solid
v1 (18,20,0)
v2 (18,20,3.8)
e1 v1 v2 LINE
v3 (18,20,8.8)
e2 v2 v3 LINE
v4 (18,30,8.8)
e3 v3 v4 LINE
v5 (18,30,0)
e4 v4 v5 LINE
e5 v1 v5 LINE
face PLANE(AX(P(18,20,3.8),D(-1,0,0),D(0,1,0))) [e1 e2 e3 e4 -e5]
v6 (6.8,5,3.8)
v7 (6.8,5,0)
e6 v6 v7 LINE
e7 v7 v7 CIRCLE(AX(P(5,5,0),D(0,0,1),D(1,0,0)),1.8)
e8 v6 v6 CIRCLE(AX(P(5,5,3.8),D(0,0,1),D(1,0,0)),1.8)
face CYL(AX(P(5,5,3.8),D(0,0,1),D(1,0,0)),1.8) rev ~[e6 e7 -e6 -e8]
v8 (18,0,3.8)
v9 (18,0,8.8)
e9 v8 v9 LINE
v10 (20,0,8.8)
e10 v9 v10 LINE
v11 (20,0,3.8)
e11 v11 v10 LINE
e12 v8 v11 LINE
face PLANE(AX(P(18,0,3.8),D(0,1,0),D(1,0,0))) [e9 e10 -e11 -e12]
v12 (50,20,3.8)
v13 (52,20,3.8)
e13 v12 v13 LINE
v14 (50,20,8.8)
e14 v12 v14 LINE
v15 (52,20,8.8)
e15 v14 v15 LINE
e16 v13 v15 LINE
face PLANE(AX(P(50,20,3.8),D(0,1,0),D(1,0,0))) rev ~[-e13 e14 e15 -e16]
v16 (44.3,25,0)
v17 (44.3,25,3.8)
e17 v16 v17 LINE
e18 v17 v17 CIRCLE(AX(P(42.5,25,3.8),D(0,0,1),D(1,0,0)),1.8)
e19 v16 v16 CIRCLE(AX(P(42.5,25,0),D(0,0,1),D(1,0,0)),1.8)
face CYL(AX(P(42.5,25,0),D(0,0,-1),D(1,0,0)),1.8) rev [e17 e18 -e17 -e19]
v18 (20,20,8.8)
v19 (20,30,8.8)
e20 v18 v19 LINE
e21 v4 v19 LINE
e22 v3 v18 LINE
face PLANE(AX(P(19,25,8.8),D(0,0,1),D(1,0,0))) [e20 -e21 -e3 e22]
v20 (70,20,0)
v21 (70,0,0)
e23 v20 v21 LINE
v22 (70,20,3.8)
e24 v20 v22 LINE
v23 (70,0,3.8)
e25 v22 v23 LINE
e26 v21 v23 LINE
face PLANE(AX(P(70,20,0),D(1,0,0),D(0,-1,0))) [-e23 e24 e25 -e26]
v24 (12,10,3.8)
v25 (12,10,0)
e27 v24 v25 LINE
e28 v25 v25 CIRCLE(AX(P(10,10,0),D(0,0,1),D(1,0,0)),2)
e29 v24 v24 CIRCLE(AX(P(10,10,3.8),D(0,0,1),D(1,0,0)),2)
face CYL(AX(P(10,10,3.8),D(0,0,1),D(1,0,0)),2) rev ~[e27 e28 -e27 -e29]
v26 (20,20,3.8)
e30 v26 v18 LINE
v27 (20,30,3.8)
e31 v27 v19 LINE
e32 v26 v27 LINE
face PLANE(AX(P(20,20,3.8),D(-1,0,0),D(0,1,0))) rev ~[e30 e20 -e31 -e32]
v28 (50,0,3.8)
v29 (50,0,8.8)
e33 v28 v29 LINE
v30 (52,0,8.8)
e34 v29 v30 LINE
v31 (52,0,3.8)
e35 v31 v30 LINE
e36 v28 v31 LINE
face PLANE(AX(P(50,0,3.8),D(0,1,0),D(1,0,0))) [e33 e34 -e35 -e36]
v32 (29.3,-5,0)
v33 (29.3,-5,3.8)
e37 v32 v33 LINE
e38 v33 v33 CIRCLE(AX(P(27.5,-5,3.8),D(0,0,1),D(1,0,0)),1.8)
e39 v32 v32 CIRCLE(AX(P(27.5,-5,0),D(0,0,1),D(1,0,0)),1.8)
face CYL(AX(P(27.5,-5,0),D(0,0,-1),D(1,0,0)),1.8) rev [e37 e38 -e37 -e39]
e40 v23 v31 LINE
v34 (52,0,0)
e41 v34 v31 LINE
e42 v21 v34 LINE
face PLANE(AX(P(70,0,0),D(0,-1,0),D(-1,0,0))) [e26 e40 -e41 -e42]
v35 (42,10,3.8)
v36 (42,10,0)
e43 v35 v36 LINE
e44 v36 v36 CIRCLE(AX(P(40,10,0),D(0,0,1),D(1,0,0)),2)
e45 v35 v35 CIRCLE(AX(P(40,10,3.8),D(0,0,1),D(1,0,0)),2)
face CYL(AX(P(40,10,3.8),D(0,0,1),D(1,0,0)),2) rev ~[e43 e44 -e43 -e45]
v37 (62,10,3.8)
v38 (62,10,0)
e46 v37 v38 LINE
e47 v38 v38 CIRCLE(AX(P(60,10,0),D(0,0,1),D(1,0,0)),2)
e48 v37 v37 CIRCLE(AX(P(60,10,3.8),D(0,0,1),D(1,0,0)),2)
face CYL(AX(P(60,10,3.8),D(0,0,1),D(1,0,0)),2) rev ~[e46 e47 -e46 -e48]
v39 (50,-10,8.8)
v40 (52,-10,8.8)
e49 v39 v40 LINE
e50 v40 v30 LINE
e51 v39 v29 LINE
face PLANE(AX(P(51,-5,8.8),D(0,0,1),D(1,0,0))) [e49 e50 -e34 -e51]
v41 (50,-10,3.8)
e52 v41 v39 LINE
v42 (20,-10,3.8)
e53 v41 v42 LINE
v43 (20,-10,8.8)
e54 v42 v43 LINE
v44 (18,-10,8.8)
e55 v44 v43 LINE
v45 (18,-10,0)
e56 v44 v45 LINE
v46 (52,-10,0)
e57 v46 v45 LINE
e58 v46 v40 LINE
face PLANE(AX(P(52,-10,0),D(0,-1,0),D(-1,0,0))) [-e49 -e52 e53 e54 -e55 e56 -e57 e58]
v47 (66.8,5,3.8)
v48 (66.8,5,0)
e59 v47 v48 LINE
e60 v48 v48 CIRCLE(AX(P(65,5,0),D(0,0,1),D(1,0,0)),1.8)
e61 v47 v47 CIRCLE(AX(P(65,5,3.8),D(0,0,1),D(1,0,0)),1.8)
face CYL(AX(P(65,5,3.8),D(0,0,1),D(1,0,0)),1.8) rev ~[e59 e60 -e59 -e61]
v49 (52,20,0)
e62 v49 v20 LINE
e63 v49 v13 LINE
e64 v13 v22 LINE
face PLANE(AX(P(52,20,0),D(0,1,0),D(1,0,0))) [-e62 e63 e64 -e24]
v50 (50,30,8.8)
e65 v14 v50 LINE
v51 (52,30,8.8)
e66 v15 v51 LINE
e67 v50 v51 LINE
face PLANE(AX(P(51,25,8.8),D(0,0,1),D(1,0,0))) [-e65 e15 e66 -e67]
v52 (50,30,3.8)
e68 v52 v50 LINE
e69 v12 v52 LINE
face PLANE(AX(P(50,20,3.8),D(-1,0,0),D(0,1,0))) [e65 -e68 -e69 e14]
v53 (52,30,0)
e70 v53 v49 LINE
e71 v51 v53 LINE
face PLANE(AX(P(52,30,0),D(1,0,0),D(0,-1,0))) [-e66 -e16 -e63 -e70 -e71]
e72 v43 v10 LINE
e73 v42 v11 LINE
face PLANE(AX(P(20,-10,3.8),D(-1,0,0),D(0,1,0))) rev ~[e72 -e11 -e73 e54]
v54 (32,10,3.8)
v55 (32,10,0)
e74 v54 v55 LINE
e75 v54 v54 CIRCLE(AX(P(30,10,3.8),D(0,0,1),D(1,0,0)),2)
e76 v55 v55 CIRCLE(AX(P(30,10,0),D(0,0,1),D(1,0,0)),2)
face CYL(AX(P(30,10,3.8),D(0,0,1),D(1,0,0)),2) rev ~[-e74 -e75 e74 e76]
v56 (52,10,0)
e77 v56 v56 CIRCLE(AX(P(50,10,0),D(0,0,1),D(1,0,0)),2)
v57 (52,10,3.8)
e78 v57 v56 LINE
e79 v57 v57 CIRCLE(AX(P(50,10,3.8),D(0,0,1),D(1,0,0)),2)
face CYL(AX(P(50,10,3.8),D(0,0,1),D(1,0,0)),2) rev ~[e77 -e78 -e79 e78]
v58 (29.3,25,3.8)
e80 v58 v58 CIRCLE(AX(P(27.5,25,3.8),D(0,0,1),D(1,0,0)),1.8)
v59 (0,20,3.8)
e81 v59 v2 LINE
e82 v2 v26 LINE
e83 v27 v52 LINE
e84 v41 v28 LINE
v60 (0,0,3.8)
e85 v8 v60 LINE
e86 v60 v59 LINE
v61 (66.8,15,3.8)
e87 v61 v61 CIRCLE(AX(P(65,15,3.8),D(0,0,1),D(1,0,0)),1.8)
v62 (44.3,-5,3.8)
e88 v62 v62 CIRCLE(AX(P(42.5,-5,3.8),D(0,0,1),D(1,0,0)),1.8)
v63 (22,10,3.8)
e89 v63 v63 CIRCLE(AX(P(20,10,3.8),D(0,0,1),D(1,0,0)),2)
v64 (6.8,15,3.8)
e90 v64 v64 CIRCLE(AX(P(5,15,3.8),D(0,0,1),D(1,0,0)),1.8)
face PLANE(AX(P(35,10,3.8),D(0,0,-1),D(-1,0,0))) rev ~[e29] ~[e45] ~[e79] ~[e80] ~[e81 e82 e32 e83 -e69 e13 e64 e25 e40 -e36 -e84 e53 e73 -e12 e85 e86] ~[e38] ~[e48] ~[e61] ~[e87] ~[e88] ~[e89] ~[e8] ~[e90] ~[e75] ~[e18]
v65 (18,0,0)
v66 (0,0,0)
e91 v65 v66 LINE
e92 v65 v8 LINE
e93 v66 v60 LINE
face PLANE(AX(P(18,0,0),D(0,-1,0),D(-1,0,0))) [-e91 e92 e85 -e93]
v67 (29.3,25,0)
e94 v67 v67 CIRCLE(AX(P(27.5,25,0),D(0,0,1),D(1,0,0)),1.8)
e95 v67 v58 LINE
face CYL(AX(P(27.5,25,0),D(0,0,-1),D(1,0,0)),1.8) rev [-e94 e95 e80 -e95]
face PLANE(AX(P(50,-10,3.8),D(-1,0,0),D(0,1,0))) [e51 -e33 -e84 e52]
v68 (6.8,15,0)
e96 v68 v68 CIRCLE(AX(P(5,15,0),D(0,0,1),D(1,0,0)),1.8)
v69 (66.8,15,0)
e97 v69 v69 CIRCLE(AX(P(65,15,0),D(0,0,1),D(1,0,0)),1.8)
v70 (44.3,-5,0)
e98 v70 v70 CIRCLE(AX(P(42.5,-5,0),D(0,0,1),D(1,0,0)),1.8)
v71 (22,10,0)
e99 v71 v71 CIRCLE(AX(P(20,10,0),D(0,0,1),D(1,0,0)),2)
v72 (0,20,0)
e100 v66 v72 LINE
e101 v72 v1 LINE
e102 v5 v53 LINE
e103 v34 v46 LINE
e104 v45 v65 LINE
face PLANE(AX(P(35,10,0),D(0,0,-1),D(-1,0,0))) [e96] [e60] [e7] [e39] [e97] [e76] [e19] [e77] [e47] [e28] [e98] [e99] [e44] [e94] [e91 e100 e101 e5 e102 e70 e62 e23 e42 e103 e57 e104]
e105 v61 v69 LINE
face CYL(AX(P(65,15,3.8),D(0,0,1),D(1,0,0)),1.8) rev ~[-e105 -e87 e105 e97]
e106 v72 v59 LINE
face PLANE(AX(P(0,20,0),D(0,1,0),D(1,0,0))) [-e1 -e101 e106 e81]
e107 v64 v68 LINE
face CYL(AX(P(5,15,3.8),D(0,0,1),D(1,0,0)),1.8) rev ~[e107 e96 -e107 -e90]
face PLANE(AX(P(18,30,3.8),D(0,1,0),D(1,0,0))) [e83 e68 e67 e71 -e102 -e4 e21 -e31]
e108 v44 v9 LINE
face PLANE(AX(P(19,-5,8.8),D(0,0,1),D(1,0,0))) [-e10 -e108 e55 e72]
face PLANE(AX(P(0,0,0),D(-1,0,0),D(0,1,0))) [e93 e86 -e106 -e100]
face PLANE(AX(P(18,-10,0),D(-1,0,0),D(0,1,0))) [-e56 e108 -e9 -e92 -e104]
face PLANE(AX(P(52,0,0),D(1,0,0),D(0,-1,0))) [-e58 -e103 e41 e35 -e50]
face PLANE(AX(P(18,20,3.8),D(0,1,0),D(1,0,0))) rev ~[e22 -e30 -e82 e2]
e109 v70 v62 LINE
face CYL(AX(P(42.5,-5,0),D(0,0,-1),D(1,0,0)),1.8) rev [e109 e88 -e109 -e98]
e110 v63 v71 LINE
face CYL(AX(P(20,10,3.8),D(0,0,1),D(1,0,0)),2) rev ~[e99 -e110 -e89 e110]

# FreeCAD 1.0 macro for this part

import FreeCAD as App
import Part
import Sketcher

V = App.Vector
Q = App.Units.Quantity


def add_polygon(sketch, points):
    """Adds a closed chain of lines whose ends are joined by coincident constraints."""
    first, n = sketch.GeometryCount, len(points)
    for a, b in zip(points, points[1:] + points[:1]):
        sketch.addGeometry(Part.LineSegment(App.Vector(*a, 0), App.Vector(*b, 0)), False)
    for i in range(n):
        sketch.addConstraint(Sketcher.Constraint("Coincident", first + i, 2, first + (i + 1) % n, 1))

doc = App.newDocument("Part")
body = doc.addObject("PartDesign::Body", "Body")

# Sketch on XY plane
sketch1 = body.newObject("Sketcher::SketchObject", "Sketch")
sketch1.AttachmentSupport = (doc.getObject("XY_Plane"), [""])
sketch1.MapMode = "FlatFace"
add_polygon(sketch1, [(0, 20), (0, 0), (18, 0), (18, -10), (52, -10), (52, 0), (70, 0), (70, 20), (52, 20), (52, 30), (18, 30), (18, 20)])  # lines 0-11
sketch1.addGeometry(Part.Circle(V(42.5, -5, 0), V(0, 0, 1), 1.8), False)  # 12
sketch1.addGeometry(Part.Circle(V(27.5, -5, 0), V(0, 0, 1), 1.8), False)  # 13
sketch1.addGeometry(Part.Circle(V(42.5, 25, 0), V(0, 0, 1), 1.8), False)  # 14
sketch1.addGeometry(Part.Circle(V(27.5, 25, 0), V(0, 0, 1), 1.8), False)  # 15
sketch1.addConstraint([
    Sketcher.Constraint("Vertical", 0),
    Sketcher.Constraint("Horizontal", 1),
    Sketcher.Constraint("Vertical", 2),
    Sketcher.Constraint("Horizontal", 3),
    Sketcher.Constraint("Vertical", 4),
    Sketcher.Constraint("Horizontal", 5),
    Sketcher.Constraint("Vertical", 6),
    Sketcher.Constraint("Horizontal", 7),
    Sketcher.Constraint("Vertical", 8),
    Sketcher.Constraint("Horizontal", 9),
    Sketcher.Constraint("Vertical", 10),
    Sketcher.Constraint("Horizontal", 11),
    Sketcher.Constraint("Coincident", 0, 2, -1, 1),
    Sketcher.Constraint("Equal", 12, 13),
    Sketcher.Constraint("Equal", 13, 14),
    Sketcher.Constraint("Equal", 14, 15),
    Sketcher.Constraint("PointOnObject", 4, 2, -1),
    Sketcher.Constraint("Horizontal", 12, 3, 13, 3),
    Sketcher.Constraint("Horizontal", 14, 3, 15, 3),
    Sketcher.Constraint("Horizontal", 7, 2, 10, 2),
    Sketcher.Constraint("Vertical", 12, 3, 14, 3),
    Sketcher.Constraint("Vertical", 13, 3, 15, 3),
    Sketcher.Constraint("Vertical", 4, 2, 7, 2),
    Sketcher.Constraint("Vertical", 2, 2, 9, 2),
    Sketcher.Constraint("Equal", 1, 5),
    Sketcher.Constraint("Equal", 4, 8),
    Sketcher.Constraint("Diameter", 12, Q("3.6 mm")),
    Sketcher.Constraint("DistanceX", 1, 1, 1, 2, Q("18 mm")),
    Sketcher.Constraint("DistanceX", 3, 1, 3, 2, Q("34 mm")),
    Sketcher.Constraint("DistanceY", 0, 2, 0, 1, Q("20 mm")),
    Sketcher.Constraint("DistanceY", 2, 2, 2, 1, Q("10 mm")),
    Sketcher.Constraint("DistanceY", 12, 3, -1, 1, Q("5 mm")),
    Sketcher.Constraint("DistanceY", -1, 1, 14, 3, Q("25 mm")),
    Sketcher.Constraint("DistanceX", 13, 3, 12, 3, Q("15 mm")),
    Sketcher.Constraint("DistanceX", -1, 1, 12, 3, Q("42.5 mm")),
])
pad1 = body.newObject("PartDesign::Pad", "Pad")
pad1.Profile = sketch1
pad1.Length = 3.8

# Sketch on XY plane
sketch2 = body.newObject("Sketcher::SketchObject", "Sketch001")
sketch2.AttachmentSupport = (doc.getObject("XY_Plane"), [""])
sketch2.MapMode = "FlatFace"
sketch2.AttachmentOffset = App.Placement(V(0, 0, 3.8), App.Rotation())
sketch2.addGeometry([
    Part.Circle(V(5, 15, 0), V(0, 0, 1), 1.8),
    Part.Circle(V(65, 15, 0), V(0, 0, 1), 1.8),
    Part.Circle(V(65, 5, 0), V(0, 0, 1), 1.8),
    Part.Circle(V(5, 5, 0), V(0, 0, 1), 1.8),
], False)
sketch2.addConstraint([
    Sketcher.Constraint("Equal", 0, 1),
    Sketcher.Constraint("Equal", 1, 2),
    Sketcher.Constraint("Equal", 2, 3),
    Sketcher.Constraint("Horizontal", 0, 3, 1, 3),
    Sketcher.Constraint("Horizontal", 2, 3, 3, 3),
    Sketcher.Constraint("Vertical", 1, 3, 2, 3),
    Sketcher.Constraint("Vertical", 0, 3, 3, 3),
    Sketcher.Constraint("Diameter", 0, Q("3.6 mm")),
    Sketcher.Constraint("DistanceX", -1, 1, 0, 3, Q("5 mm")),
    Sketcher.Constraint("DistanceY", -1, 1, 0, 3, Q("15 mm")),
    Sketcher.Constraint("DistanceX", -1, 1, 1, 3, Q("65 mm")),
    Sketcher.Constraint("DistanceY", -1, 1, 2, 3, Q("5 mm")),
])
pocket1 = body.newObject("PartDesign::Pocket", "Pocket")
pocket1.Profile = sketch2
pocket1.Length = 5

# Sketch on XY plane
sketch3 = body.newObject("Sketcher::SketchObject", "Sketch002")
sketch3.AttachmentSupport = (doc.getObject("XY_Plane"), [""])
sketch3.MapMode = "FlatFace"
sketch3.AttachmentOffset = App.Placement(V(0, 0, 3.8), App.Rotation())
add_polygon(sketch3, [(18, 30), (18, 20), (20, 20), (20, 30)])  # lines 0-3
add_polygon(sketch3, [(50, 30), (50, 20), (52, 20), (52, 30)])  # lines 4-7
add_polygon(sketch3, [(50, 0), (50, -10), (52, -10), (52, 0)])  # lines 8-11
add_polygon(sketch3, [(18, 0), (18, -10), (20, -10), (20, 0)])  # lines 12-15
sketch3.addConstraint([
    Sketcher.Constraint("Vertical", 0),
    Sketcher.Constraint("Horizontal", 1),
    Sketcher.Constraint("Vertical", 2),
    Sketcher.Constraint("Horizontal", 3),
    Sketcher.Constraint("Vertical", 4),
    Sketcher.Constraint("Horizontal", 5),
    Sketcher.Constraint("Vertical", 6),
    Sketcher.Constraint("Horizontal", 7),
    Sketcher.Constraint("Vertical", 8),
    Sketcher.Constraint("Horizontal", 9),
    Sketcher.Constraint("Vertical", 10),
    Sketcher.Constraint("Horizontal", 11),
    Sketcher.Constraint("Vertical", 12),
    Sketcher.Constraint("Horizontal", 13),
    Sketcher.Constraint("Vertical", 14),
    Sketcher.Constraint("Horizontal", 15),
    Sketcher.Constraint("PointOnObject", 10, 2, -1),
    Sketcher.Constraint("PointOnObject", 14, 2, -1),
    Sketcher.Constraint("Horizontal", 1, 2, 4, 2),
    Sketcher.Constraint("Horizontal", 3, 2, 6, 2),
    Sketcher.Constraint("Horizontal", 9, 2, 12, 2),
    Sketcher.Constraint("Vertical", 7, 2, 8, 2),
    Sketcher.Constraint("Vertical", 6, 2, 9, 2),
    Sketcher.Constraint("Vertical", 3, 2, 12, 2),
    Sketcher.Constraint("Vertical", 2, 2, 13, 2),
    Sketcher.Constraint("Equal", 3, 5),
    Sketcher.Constraint("Equal", 6, 8),
    Sketcher.Constraint("DistanceX", 1, 1, 1, 2, Q("2 mm")),
    Sketcher.Constraint("DistanceY", 0, 2, 0, 1, Q("10 mm")),
    Sketcher.Constraint("DistanceX", -1, 1, 0, 2, Q("18 mm")),
    Sketcher.Constraint("DistanceY", -1, 1, 0, 2, Q("20 mm")),
    Sketcher.Constraint("DistanceX", -1, 1, 4, 2, Q("50 mm")),
])
pad2 = body.newObject("PartDesign::Pad", "Pad001")
pad2.Profile = sketch3
pad2.Length = 5

# Sketch on XY plane
sketch4 = body.newObject("Sketcher::SketchObject", "Sketch003")
sketch4.AttachmentSupport = (doc.getObject("XY_Plane"), [""])
sketch4.MapMode = "FlatFace"
sketch4.AttachmentOffset = App.Placement(V(0, 0, 3.8), App.Rotation())
sketch4.addGeometry([
    Part.Circle(V(10, 10, 0), V(0, 0, 1), 2),  # 0
    Part.Circle(V(20, 10, 0), V(0, 0, 1), 2),  # 1
    Part.Circle(V(30, 10, 0), V(0, 0, 1), 2),  # 2
    Part.Circle(V(40, 10, 0), V(0, 0, 1), 2),  # 3
    Part.Circle(V(50, 10, 0), V(0, 0, 1), 2),  # 4
    Part.Circle(V(60, 10, 0), V(0, 0, 1), 2),  # 5
], False)
sketch4.addConstraint([
    Sketcher.Constraint("Equal", 0, 1),
    Sketcher.Constraint("Equal", 1, 2),
    Sketcher.Constraint("Equal", 2, 3),
    Sketcher.Constraint("Equal", 3, 4),
    Sketcher.Constraint("Equal", 4, 5),
    Sketcher.Constraint("Horizontal", 0, 3, 1, 3),
    Sketcher.Constraint("Horizontal", 1, 3, 2, 3),
    Sketcher.Constraint("Horizontal", 2, 3, 3, 3),
    Sketcher.Constraint("Horizontal", 3, 3, 4, 3),
    Sketcher.Constraint("Horizontal", 4, 3, 5, 3),
    Sketcher.Constraint("Diameter", 0, Q("4 mm")),
    Sketcher.Constraint("DistanceX", -1, 1, 0, 3, Q("10 mm")),
    Sketcher.Constraint("DistanceY", -1, 1, 0, 3, Q("10 mm")),
    Sketcher.Constraint("DistanceX", -1, 1, 1, 3, Q("20 mm")),
    Sketcher.Constraint("DistanceX", -1, 1, 2, 3, Q("30 mm")),
    Sketcher.Constraint("DistanceX", -1, 1, 3, 3, Q("40 mm")),
    Sketcher.Constraint("DistanceX", -1, 1, 4, 3, Q("50 mm")),
    Sketcher.Constraint("DistanceX", -1, 1, 5, 3, Q("60 mm")),
])
pocket2 = body.newObject("PartDesign::Pocket", "Pocket001")
pocket2.Profile = sketch4
pocket2.Length = 5

doc.recompute()
